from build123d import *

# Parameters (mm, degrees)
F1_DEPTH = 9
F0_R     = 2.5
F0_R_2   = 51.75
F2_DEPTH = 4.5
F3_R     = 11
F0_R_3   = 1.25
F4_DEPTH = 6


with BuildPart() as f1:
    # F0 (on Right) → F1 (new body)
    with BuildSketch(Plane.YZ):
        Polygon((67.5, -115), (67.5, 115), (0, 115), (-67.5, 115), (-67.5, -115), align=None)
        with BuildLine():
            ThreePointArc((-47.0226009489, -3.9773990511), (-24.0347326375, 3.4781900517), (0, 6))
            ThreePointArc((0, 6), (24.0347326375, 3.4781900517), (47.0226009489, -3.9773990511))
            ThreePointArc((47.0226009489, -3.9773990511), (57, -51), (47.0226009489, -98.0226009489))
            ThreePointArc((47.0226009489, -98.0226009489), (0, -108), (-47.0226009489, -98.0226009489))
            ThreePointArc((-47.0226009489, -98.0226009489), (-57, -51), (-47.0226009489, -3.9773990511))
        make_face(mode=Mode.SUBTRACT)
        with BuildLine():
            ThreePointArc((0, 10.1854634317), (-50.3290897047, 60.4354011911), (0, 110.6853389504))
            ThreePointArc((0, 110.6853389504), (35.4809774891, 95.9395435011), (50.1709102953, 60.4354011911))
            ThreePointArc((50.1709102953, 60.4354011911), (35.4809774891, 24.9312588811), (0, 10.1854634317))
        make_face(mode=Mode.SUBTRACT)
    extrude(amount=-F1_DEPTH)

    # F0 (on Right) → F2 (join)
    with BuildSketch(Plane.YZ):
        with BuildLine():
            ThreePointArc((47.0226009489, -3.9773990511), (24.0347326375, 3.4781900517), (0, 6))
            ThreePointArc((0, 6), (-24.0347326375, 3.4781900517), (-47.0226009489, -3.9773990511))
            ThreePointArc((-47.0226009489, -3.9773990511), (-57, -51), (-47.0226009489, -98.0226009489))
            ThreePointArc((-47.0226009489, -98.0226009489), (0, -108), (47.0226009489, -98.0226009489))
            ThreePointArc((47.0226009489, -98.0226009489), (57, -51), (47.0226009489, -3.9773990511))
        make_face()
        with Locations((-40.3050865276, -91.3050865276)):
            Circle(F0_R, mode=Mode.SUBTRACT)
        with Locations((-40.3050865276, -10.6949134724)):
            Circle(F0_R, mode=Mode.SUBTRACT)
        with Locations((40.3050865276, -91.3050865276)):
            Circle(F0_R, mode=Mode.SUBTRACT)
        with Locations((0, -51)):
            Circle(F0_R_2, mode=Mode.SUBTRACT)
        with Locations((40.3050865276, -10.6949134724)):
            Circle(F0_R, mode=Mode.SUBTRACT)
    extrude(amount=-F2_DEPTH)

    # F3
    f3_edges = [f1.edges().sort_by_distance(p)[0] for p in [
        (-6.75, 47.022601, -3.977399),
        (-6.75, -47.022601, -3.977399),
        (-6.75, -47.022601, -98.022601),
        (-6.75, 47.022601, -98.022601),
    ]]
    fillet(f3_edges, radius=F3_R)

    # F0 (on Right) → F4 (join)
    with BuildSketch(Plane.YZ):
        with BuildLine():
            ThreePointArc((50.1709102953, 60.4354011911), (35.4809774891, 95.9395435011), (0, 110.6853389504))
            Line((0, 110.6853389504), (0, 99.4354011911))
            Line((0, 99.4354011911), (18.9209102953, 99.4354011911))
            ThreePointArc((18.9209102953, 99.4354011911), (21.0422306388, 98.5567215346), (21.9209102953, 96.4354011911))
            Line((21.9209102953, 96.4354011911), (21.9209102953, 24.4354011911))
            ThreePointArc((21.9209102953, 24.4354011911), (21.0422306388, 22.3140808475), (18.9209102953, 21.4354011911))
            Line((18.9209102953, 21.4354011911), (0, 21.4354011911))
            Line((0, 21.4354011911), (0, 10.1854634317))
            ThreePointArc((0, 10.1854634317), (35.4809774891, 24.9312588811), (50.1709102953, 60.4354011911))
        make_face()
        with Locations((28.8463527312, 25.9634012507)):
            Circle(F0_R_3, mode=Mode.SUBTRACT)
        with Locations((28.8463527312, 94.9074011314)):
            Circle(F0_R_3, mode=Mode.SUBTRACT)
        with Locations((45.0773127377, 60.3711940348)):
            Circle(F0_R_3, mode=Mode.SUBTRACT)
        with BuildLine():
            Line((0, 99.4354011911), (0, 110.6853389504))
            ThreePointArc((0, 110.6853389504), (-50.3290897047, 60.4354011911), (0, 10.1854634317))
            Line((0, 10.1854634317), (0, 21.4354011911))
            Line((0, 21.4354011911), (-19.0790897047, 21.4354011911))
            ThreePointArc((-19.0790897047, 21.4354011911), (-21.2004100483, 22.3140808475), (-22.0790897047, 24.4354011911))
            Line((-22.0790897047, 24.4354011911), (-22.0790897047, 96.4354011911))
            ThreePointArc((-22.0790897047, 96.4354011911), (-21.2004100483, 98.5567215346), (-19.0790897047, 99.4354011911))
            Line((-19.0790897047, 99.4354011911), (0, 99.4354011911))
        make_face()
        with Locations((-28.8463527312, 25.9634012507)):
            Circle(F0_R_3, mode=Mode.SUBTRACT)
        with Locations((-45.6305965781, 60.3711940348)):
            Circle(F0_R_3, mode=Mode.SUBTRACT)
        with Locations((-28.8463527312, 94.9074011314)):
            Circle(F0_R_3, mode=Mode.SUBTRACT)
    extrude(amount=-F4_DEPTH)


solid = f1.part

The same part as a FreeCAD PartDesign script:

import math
import FreeCAD as App
import Part
import Sketcher


def edges_at(feature, points):
    """Names of the edges that pass closest to the given points."""
    edges = feature.Shape.Edges
    near = lambda p: min(range(len(edges)), key=lambda i: edges[i].distToShape(Part.Vertex(*p))[0])
    return sorted({f"Edge{near(p) + 1}" for p in points})


def add_polygon(sketch, points):
    """Adds a closed chain of lines whose ends are joined by coincident constraints."""
    first, n = sketch.GeometryCount, len(points)
    for a, b in zip(points, points[1:] + points[:1]):
        sketch.addGeometry(Part.LineSegment(App.Vector(*a, 0), App.Vector(*b, 0)), False)
    for i in range(n):
        sketch.addConstraint(Sketcher.Constraint("Coincident", first + i, 2, first + (i + 1) % n, 1))

doc = App.newDocument("Part")
body = doc.addObject("PartDesign::Body", "Body")

# Sketch on YZ plane
sketch1 = body.newObject("Sketcher::SketchObject", "Sketch")
sketch1.AttachmentSupport = (doc.getObject("YZ_Plane"), [""])
sketch1.MapMode = "FlatFace"
add_polygon(sketch1, [(67.5, -115), (67.5, 115), (-67.5, 115), (-67.5, -115)])  # lines 0-3
sketch1.addGeometry(Part.ArcOfCircle(Part.Circle(App.Vector(58.795383, -51, 0), App.Vector(0, 0, 1), 115.795383), math.radians(156.040954), math.radians(203.959046)), False)  # 4
sketch1.addGeometry(Part.ArcOfCircle(Part.Circle(App.Vector(0, -109.795383, 0), App.Vector(0, 0, 1), 115.795383), math.radians(90), math.radians(113.959046)), False)  # 5
sketch1.addGeometry(Part.ArcOfCircle(Part.Circle(App.Vector(0, -109.795383, 0), App.Vector(0, 0, 1), 115.795383), math.radians(66.040954), math.radians(90)), False)  # 6
sketch1.addGeometry(Part.ArcOfCircle(Part.Circle(App.Vector(-58.795383, -51, 0), App.Vector(0, 0, 1), 115.795383), math.radians(-23.959046), math.radians(23.959046)), False)  # 7
sketch1.addGeometry(Part.ArcOfCircle(Part.Circle(App.Vector(0, 7.795383, 0), App.Vector(0, 0, 1), 115.795383), math.radians(-113.959046), math.radians(-66.040954)), False)  # 8
sketch1.addGeometry(Part.ArcOfCircle(Part.Circle(App.Vector(-0.07909, 60.435401, 0), App.Vector(0, 0, 1), 50.25), math.radians(-89.909821), math.radians(0)), False)  # 9
sketch1.addGeometry(Part.ArcOfCircle(Part.Circle(App.Vector(-0.07909, 60.435401, 0), App.Vector(0, 0, 1), 50.25), math.radians(0), math.radians(270.090179)), False)  # 10
sketch1.addConstraint(Sketcher.Constraint("Coincident", 4, 1, 5, 2))
sketch1.addConstraint(Sketcher.Constraint("Tangent", 5, 1, 6, 2))
sketch1.addConstraint(Sketcher.Constraint("Coincident", 6, 1, 7, 2))
sketch1.addConstraint(Sketcher.Constraint("Coincident", 7, 1, 8, 2))
sketch1.addConstraint(Sketcher.Constraint("Coincident", 8, 1, 4, 2))
sketch1.addConstraint(Sketcher.Constraint("Tangent", 9, 1, 10, 2))
sketch1.addConstraint(Sketcher.Constraint("Coincident", 10, 1, 9, 2))
sketch1.addConstraint(Sketcher.Constraint("Vertical", 0))
sketch1.addConstraint(Sketcher.Constraint("Horizontal", 1))
sketch1.addConstraint(Sketcher.Constraint("Vertical", 2))
sketch1.addConstraint(Sketcher.Constraint("Horizontal", 3))
sketch1.addConstraint(Sketcher.Constraint("Equal", 4, 5))
sketch1.addConstraint(Sketcher.Constraint("Equal", 5, 6))
sketch1.addConstraint(Sketcher.Constraint("Equal", 6, 7))
sketch1.addConstraint(Sketcher.Constraint("Equal", 7, 8))
sketch1.addConstraint(Sketcher.Constraint("Symmetric", 0, 2, 2, 2, -1, 1))
sketch1.addConstraint(Sketcher.Constraint("Symmetric", 4, 3, 7, 3, -2))
sketch1.addConstraint(Sketcher.Constraint("PointOnObject", 5, 3, -2))
sketch1.addConstraint(Sketcher.Constraint("PointOnObject", 8, 3, -2))
sketch1.addConstraint(Sketcher.Constraint("PointOnObject", 5, 1, -2))
sketch1.addConstraint(Sketcher.Constraint("PointOnObject", 9, 1, -2))
sketch1.addConstraint(Sketcher.Constraint("Horizontal", 9, 3, 10, 1))
sketch1.addConstraint(Sketcher.Constraint("Vertical", 6, 1, 7, 1))
sketch1.addConstraint(Sketcher.Constraint("DistanceX", 1, 2, 1, 1, 135.0))
sketch1.addConstraint(Sketcher.Constraint("DistanceY", 0, 1, 0, 2, 230.0))
sketch1.addConstraint(Sketcher.Constraint("Radius", 9, 50.25))
sketch1.addConstraint(Sketcher.Constraint("DistanceY", 4, 3, -1, 1, 51.0))
sketch1.addConstraint(Sketcher.Constraint("DistanceY", -1, 1, 5, 1, 6.0))
sketch1.addConstraint(Sketcher.Constraint("Radius", 4, 115.795383))
sketch1.addConstraint(Sketcher.Constraint("DistanceY", -1, 1, 9, 3, 60.435401))
sketch1.addConstraint(Sketcher.Constraint("DistanceX", 4, 1, -1, 1, 47.022601))
sketch1.addConstraint(Sketcher.Constraint("DistanceX", 9, 3, -1, 1, 0.07909))
pad1 = body.newObject("PartDesign::Pad", "Pad")
pad1.Profile = sketch1
pad1.Length = 9
pad1.Reversed = True

# Sketch on YZ plane
sketch2 = body.newObject("Sketcher::SketchObject", "Sketch001")
sketch2.AttachmentSupport = (doc.getObject("YZ_Plane"), [""])
sketch2.MapMode = "FlatFace"
sketch2.addGeometry(Part.ArcOfCircle(Part.Circle(App.Vector(0, -109.795383, 0), App.Vector(0, 0, 1), 115.795383), math.radians(66.040954), math.radians(90)), False)
sketch2.addGeometry(Part.ArcOfCircle(Part.Circle(App.Vector(0, -109.795383, 0), App.Vector(0, 0, 1), 115.795383), math.radians(90), math.radians(113.959046)), False)
sketch2.addGeometry(Part.ArcOfCircle(Part.Circle(App.Vector(58.795383, -51, 0), App.Vector(0, 0, 1), 115.795383), math.radians(156.040954), math.radians(203.959046)), False)
sketch2.addGeometry(Part.ArcOfCircle(Part.Circle(App.Vector(0, 7.795383, 0), App.Vector(0, 0, 1), 115.795383), math.radians(-113.959046), math.radians(-66.040954)), False)
sketch2.addGeometry(Part.ArcOfCircle(Part.Circle(App.Vector(-58.795383, -51, 0), App.Vector(0, 0, 1), 115.795383), math.radians(-23.959046), math.radians(23.959046)), False)
sketch2.addGeometry(Part.Circle(App.Vector(-40.305087, -91.305087, 0), App.Vector(0, 0, 1), 2.5), False)
sketch2.addGeometry(Part.Circle(App.Vector(40.305087, -91.305087, 0), App.Vector(0, 0, 1), 2.5), False)
sketch2.addGeometry(Part.Circle(App.Vector(-40.305087, -10.694913, 0), App.Vector(0, 0, 1), 2.5), False)
sketch2.addGeometry(Part.Circle(App.Vector(0, -51, 0), App.Vector(0, 0, 1), 51.75), False)
sketch2.addGeometry(Part.Circle(App.Vector(40.305087, -10.694913, 0), App.Vector(0, 0, 1), 2.5), False)
sketch2.addConstraint(Sketcher.Constraint("Tangent", 0, 2, 1, 1))
sketch2.addConstraint(Sketcher.Constraint("Coincident", 1, 2, 2, 1))
sketch2.addConstraint(Sketcher.Constraint("Coincident", 2, 2, 3, 1))
sketch2.addConstraint(Sketcher.Constraint("Coincident", 3, 2, 4, 1))
sketch2.addConstraint(Sketcher.Constraint("Coincident", 4, 2, 0, 1))
sketch2.addConstraint(Sketcher.Constraint("Equal", 0, 1))
sketch2.addConstraint(Sketcher.Constraint("Equal", 1, 2))
sketch2.addConstraint(Sketcher.Constraint("Equal", 2, 3))
sketch2.addConstraint(Sketcher.Constraint("Equal", 3, 4))
sketch2.addConstraint(Sketcher.Constraint("Equal", 5, 6))
sketch2.addConstraint(Sketcher.Constraint("Equal", 6, 7))
sketch2.addConstraint(Sketcher.Constraint("Equal", 7, 9))
sketch2.addConstraint(Sketcher.Constraint("Symmetric", 2, 3, 4, 3, -2))
sketch2.addConstraint(Sketcher.Constraint("Symmetric", 5, 3, 6, 3, -2))
sketch2.addConstraint(Sketcher.Constraint("Symmetric", 7, 3, 9, 3, -2))
sketch2.addConstraint(Sketcher.Constraint("PointOnObject", 0, 3, -2))
sketch2.addConstraint(Sketcher.Constraint("PointOnObject", 3, 3, -2))
sketch2.addConstraint(Sketcher.Constraint("PointOnObject", 8, 3, -2))
sketch2.addConstraint(Sketcher.Constraint("PointOnObject", 0, 2, -2))
sketch2.addConstraint(Sketcher.Constraint("Horizontal", 4, 3, 8, 3))
sketch2.addConstraint(Sketcher.Constraint("Vertical", 5, 3, 7, 3))
sketch2.addConstraint(Sketcher.Constraint("Vertical", 1, 2, 2, 2))
sketch2.addConstraint(Sketcher.Constraint("Diameter", 5, 5.0))
sketch2.addConstraint(Sketcher.Constraint("Diameter", 8, 103.5))
sketch2.addConstraint(Sketcher.Constraint("DistanceY", 2, 3, -1, 1, 51.0))
sketch2.addConstraint(Sketcher.Constraint("DistanceY", -1, 1, 0, 2, 6.0))
sketch2.addConstraint(Sketcher.Constraint("Radius", 0, 115.795383))
sketch2.addConstraint(Sketcher.Constraint("DistanceX", 1, 2, -1, 1, 47.022601))
sketch2.addConstraint(Sketcher.Constraint("DistanceX", 5, 3, 2, 3, 99.10047))
sketch2.addConstraint(Sketcher.Constraint("DistanceY", 5, 3, 3, 3, 99.10047))
sketch2.addConstraint(Sketcher.Constraint("DistanceY", 0, 3, 7, 3, 99.10047))
pad2 = body.newObject("PartDesign::Pad", "Pad001")
pad2.Profile = sketch2
pad2.Length = 4.5
pad2.Reversed = True
doc.recompute()

fillet = body.newObject("PartDesign::Fillet", "Fillet")
fillet.Base = (pad2, edges_at(pad2, [
    (-6.75, 47.023, -3.977),
    (-6.75, -47.023, -3.977),
    (-6.75, -47.023, -98.023),
    (-6.75, 47.023, -98.023),
]))
fillet.Radius = 11

# Sketch on YZ plane
sketch3 = body.newObject("Sketcher::SketchObject", "Sketch002")
sketch3.AttachmentSupport = (doc.getObject("YZ_Plane"), [""])
sketch3.MapMode = "FlatFace"
sketch3.addGeometry(Part.ArcOfCircle(Part.Circle(App.Vector(-0.07909, 60.435401, 0), App.Vector(0, 0, 1), 50.25), math.radians(0), math.radians(270.090179)), False)
sketch3.addGeometry(Part.ArcOfCircle(Part.Circle(App.Vector(-0.07909, 60.435401, 0), App.Vector(0, 0, 1), 50.25), math.radians(-89.909821), math.radians(0)), False)
sketch3.addGeometry(Part.Circle(App.Vector(-28.846353, 25.963401, 0), App.Vector(0, 0, 1), 1.25), False)
sketch3.addGeometry(Part.Circle(App.Vector(-45.630597, 60.371194, 0), App.Vector(0, 0, 1), 1.25), False)
sketch3.addGeometry(Part.Circle(App.Vector(28.846353, 25.963401, 0), App.Vector(0, 0, 1), 1.25), False)
sketch3.addGeometry(Part.Circle(App.Vector(45.077313, 60.371194, 0), App.Vector(0, 0, 1), 1.25), False)
sketch3.addGeometry(Part.Circle(App.Vector(-28.846353, 94.907401, 0), App.Vector(0, 0, 1), 1.25), False)
sketch3.addGeometry(Part.ArcOfCircle(Part.Circle(App.Vector(18.92091, 96.435401, 0), App.Vector(0, 0, 1), 3), math.radians(0), math.radians(90)), False)
sketch3.addGeometry(Part.LineSegment(App.Vector(21.92091, 96.435401, 0), App.Vector(21.92091, 24.435401, 0)), False)
sketch3.addGeometry(Part.ArcOfCircle(Part.Circle(App.Vector(18.92091, 24.435401, 0), App.Vector(0, 0, 1), 3), math.radians(-90), math.radians(0)), False)
sketch3.addGeometry(Part.LineSegment(App.Vector(18.92091, 21.435401, 0), App.Vector(-19.07909, 21.435401, 0)), False)
sketch3.addGeometry(Part.ArcOfCircle(Part.Circle(App.Vector(-19.07909, 24.435401, 0), App.Vector(0, 0, 1), 3), math.radians(180), math.radians(270)), False)
sketch3.addGeometry(Part.LineSegment(App.Vector(-22.07909, 24.435401, 0), App.Vector(-22.07909, 96.435401, 0)), False)
sketch3.addGeometry(Part.ArcOfCircle(Part.Circle(App.Vector(-19.07909, 96.435401, 0), App.Vector(0, 0, 1), 3), math.radians(90), math.radians(180)), False)
sketch3.addGeometry(Part.LineSegment(App.Vector(-19.07909, 99.435401, 0), App.Vector(18.92091, 99.435401, 0)), False)
sketch3.addGeometry(Part.Circle(App.Vector(28.846353, 94.907401, 0), App.Vector(0, 0, 1), 1.25), False)
sketch3.addConstraint(Sketcher.Constraint("Tangent", 0, 1, 1, 2))
sketch3.addConstraint(Sketcher.Constraint("Coincident", 1, 1, 0, 2))
sketch3.addConstraint(Sketcher.Constraint("Tangent", 7, 1, 8, 1))
sketch3.addConstraint(Sketcher.Constraint("Tangent", 8, 2, 9, 2))
sketch3.addConstraint(Sketcher.Constraint("Tangent", 9, 1, 10, 1))
sketch3.addConstraint(Sketcher.Constraint("Tangent", 10, 2, 11, 2))
sketch3.addConstraint(Sketcher.Constraint("Tangent", 11, 1, 12, 1))
sketch3.addConstraint(Sketcher.Constraint("Tangent", 12, 2, 13, 2))
sketch3.addConstraint(Sketcher.Constraint("Tangent", 13, 1, 14, 1))
sketch3.addConstraint(Sketcher.Constraint("Tangent", 14, 2, 7, 2))
sketch3.addConstraint(Sketcher.Constraint("Vertical", 8))
sketch3.addConstraint(Sketcher.Constraint("Horizontal", 10))
sketch3.addConstraint(Sketcher.Constraint("Vertical", 12))
sketch3.addConstraint(Sketcher.Constraint("Horizontal", 14))
sketch3.addConstraint(Sketcher.Constraint("Equal", 2, 3))
sketch3.addConstraint(Sketcher.Constraint("Equal", 3, 4))
sketch3.addConstraint(Sketcher.Constraint("Equal", 4, 5))
sketch3.addConstraint(Sketcher.Constraint("Equal", 5, 6))
sketch3.addConstraint(Sketcher.Constraint("Equal", 7, 9))
sketch3.addConstraint(Sketcher.Constraint("Equal", 9, 11))
sketch3.addConstraint(Sketcher.Constraint("Equal", 11, 13))
sketch3.addConstraint(Sketcher.Constraint("Equal", 6, 15))
sketch3.addConstraint(Sketcher.Constraint("Symmetric", 2, 3, 4, 3, -2))
sketch3.addConstraint(Sketcher.Constraint("Symmetric", 6, 3, 15, 3, -2))
sketch3.addConstraint(Sketcher.Constraint("PointOnObject", 1, 1, -2))
sketch3.addConstraint(Sketcher.Constraint("Horizontal", 3, 3, 5, 3))
sketch3.addConstraint(Sketcher.Constraint("Horizontal", 1, 3, 0, 1))
sketch3.addConstraint(Sketcher.Constraint("Vertical", 2, 3, 6, 3))
sketch3.addConstraint(Sketcher.Constraint("Radius", 7, 3.0))
sketch3.addConstraint(Sketcher.Constraint("Diameter", 2, 2.5))
sketch3.addConstraint(Sketcher.Constraint("DistanceX", 10, 2, 10, 1, 38.0))
sketch3.addConstraint(Sketcher.Constraint("DistanceY", 8, 2, 8, 1, 72.0))
sketch3.addConstraint(Sketcher.Constraint("Radius", 0, 50.25))
sketch3.addConstraint(Sketcher.Constraint("DistanceX", 0, 3, 7, 3, 19.0))
sketch3.addConstraint(Sketcher.Constraint("DistanceY", 0, 3, 7, 3, 36.0))
sketch3.addConstraint(Sketcher.Constraint("DistanceY", 2, 3, 0, 3, 34.472))
sketch3.addConstraint(Sketcher.Constraint("DistanceY", 0, 3, 6, 3, 34.472))
sketch3.addConstraint(Sketcher.Constraint("DistanceY", -1, 1, 0, 3, 60.435401))
sketch3.addConstraint(Sketcher.Constraint("DistanceX", 0, 3, -1, 1, 0.07909))
sketch3.addConstraint(Sketcher.Constraint("DistanceX", 3, 3, 4, 3, 74.476949))
sketch3.addConstraint(Sketcher.Constraint("DistanceX", 4, 3, 5, 3, 16.23096))
sketch3.addConstraint(Sketcher.Constraint("DistanceX", 2, 3, -1, 1, 28.846353))
sketch3.addConstraint(Sketcher.Constraint("DistanceY", -1, 1, 3, 3, 60.371194))
pad3 = body.newObject("PartDesign::Pad", "Pad002")
pad3.Profile = sketch3
pad3.Length = 6
pad3.Reversed = True

doc.recompute()
